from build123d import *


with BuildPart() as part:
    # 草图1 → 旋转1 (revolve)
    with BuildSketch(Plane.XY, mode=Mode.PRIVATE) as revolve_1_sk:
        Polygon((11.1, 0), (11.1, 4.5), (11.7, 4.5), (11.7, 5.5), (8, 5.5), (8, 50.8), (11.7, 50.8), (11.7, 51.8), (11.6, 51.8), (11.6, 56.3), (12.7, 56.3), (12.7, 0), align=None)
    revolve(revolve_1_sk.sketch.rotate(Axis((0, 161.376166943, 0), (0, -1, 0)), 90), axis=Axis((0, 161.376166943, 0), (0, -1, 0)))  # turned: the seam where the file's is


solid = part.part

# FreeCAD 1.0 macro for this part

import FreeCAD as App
import Part
import Sketcher
from FreeCAD import Vector


def add_polygon(sketch, points):
    """Adds a closed chain of lines whose ends are joined by coincident constraints."""
    first, n = sketch.GeometryCount, len(points)
    for a, b in zip(points, points[1:] + points[:1]):
        sketch.addGeometry(Part.LineSegment(App.Vector(*a, 0), App.Vector(*b, 0)), False)
    for i in range(n):
        sketch.addConstraint(Sketcher.Constraint("Coincident", first + i, 2, first + (i + 1) % n, 1))

doc = App.newDocument("Part")
body = doc.addObject("PartDesign::Body", "Body")

# Sketch on XY plane
sketch1 = doc.addObject("Sketcher::SketchObject", "Sketch")
body.addObject(sketch1)
sketch1.AttachmentSupport = (doc.XY_Plane, [""])
sketch1.MapMode = "FlatFace"
add_polygon(sketch1, [(11.1, 4.5), (11.1, 0), (12.7, 0), (12.7, 56.3), (11.6, 56.3), (11.6, 51.8), (11.7, 51.8), (11.7, 50.8), (8, 50.8), (8, 5.5), (11.7, 5.5), (11.7, 4.5)])  # lines 0-11
sketch1.addConstraint(Sketcher.Constraint("Vertical", 0))
sketch1.addConstraint(Sketcher.Constraint("Horizontal", 1))
sketch1.addConstraint(Sketcher.Constraint("Vertical", 2))
sketch1.addConstraint(Sketcher.Constraint("Horizontal", 3))
sketch1.addConstraint(Sketcher.Constraint("Vertical", 4))
sketch1.addConstraint(Sketcher.Constraint("Horizontal", 5))
sketch1.addConstraint(Sketcher.Constraint("Vertical", 6))
sketch1.addConstraint(Sketcher.Constraint("Horizontal", 7))
sketch1.addConstraint(Sketcher.Constraint("Vertical", 8))
sketch1.addConstraint(Sketcher.Constraint("Horizontal", 9))
sketch1.addConstraint(Sketcher.Constraint("Vertical", 10))
sketch1.addConstraint(Sketcher.Constraint("Horizontal", 11))
sketch1.addConstraint(Sketcher.Constraint("PointOnObject", 0, 2, -1))
sketch1.addConstraint(Sketcher.Constraint("Vertical", 6, 2, 9, 2))
sketch1.addConstraint(Sketcher.Constraint("Equal", 0, 4))
sketch1.addConstraint(Sketcher.Constraint("Equal", 6, 10))
sketch1.addConstraint(Sketcher.Constraint("DistanceY", 6, 2, 6, 1, 1.0))
sketch1.addConstraint(Sketcher.Constraint("DistanceX", 1, 1, 1, 2, 1.6))
sketch1.addConstraint(Sketcher.Constraint("DistanceX", 3, 2, 3, 1, 1.1))
sketch1.addConstraint(Sketcher.Constraint("DistanceX", 5, 1, 5, 2, 0.1))
sketch1.addConstraint(Sketcher.Constraint("DistanceX", 7, 2, 7, 1, 3.7))
sketch1.addConstraint(Sketcher.Constraint("DistanceY", 0, 2, 0, 1, 4.5))
sketch1.addConstraint(Sketcher.Constraint("DistanceY", 2, 1, 2, 2, 56.3))
sketch1.addConstraint(Sketcher.Constraint("DistanceX", -1, 1, 7, 2, 8.0))
revolution = doc.addObject("PartDesign::Revolution", "Revolution")
body.addObject(revolution)
revolution.Profile = sketch1
revolution.ReferenceAxis = (sketch1, ["V_Axis"])
revolution.Angle = 360

doc.recompute()
